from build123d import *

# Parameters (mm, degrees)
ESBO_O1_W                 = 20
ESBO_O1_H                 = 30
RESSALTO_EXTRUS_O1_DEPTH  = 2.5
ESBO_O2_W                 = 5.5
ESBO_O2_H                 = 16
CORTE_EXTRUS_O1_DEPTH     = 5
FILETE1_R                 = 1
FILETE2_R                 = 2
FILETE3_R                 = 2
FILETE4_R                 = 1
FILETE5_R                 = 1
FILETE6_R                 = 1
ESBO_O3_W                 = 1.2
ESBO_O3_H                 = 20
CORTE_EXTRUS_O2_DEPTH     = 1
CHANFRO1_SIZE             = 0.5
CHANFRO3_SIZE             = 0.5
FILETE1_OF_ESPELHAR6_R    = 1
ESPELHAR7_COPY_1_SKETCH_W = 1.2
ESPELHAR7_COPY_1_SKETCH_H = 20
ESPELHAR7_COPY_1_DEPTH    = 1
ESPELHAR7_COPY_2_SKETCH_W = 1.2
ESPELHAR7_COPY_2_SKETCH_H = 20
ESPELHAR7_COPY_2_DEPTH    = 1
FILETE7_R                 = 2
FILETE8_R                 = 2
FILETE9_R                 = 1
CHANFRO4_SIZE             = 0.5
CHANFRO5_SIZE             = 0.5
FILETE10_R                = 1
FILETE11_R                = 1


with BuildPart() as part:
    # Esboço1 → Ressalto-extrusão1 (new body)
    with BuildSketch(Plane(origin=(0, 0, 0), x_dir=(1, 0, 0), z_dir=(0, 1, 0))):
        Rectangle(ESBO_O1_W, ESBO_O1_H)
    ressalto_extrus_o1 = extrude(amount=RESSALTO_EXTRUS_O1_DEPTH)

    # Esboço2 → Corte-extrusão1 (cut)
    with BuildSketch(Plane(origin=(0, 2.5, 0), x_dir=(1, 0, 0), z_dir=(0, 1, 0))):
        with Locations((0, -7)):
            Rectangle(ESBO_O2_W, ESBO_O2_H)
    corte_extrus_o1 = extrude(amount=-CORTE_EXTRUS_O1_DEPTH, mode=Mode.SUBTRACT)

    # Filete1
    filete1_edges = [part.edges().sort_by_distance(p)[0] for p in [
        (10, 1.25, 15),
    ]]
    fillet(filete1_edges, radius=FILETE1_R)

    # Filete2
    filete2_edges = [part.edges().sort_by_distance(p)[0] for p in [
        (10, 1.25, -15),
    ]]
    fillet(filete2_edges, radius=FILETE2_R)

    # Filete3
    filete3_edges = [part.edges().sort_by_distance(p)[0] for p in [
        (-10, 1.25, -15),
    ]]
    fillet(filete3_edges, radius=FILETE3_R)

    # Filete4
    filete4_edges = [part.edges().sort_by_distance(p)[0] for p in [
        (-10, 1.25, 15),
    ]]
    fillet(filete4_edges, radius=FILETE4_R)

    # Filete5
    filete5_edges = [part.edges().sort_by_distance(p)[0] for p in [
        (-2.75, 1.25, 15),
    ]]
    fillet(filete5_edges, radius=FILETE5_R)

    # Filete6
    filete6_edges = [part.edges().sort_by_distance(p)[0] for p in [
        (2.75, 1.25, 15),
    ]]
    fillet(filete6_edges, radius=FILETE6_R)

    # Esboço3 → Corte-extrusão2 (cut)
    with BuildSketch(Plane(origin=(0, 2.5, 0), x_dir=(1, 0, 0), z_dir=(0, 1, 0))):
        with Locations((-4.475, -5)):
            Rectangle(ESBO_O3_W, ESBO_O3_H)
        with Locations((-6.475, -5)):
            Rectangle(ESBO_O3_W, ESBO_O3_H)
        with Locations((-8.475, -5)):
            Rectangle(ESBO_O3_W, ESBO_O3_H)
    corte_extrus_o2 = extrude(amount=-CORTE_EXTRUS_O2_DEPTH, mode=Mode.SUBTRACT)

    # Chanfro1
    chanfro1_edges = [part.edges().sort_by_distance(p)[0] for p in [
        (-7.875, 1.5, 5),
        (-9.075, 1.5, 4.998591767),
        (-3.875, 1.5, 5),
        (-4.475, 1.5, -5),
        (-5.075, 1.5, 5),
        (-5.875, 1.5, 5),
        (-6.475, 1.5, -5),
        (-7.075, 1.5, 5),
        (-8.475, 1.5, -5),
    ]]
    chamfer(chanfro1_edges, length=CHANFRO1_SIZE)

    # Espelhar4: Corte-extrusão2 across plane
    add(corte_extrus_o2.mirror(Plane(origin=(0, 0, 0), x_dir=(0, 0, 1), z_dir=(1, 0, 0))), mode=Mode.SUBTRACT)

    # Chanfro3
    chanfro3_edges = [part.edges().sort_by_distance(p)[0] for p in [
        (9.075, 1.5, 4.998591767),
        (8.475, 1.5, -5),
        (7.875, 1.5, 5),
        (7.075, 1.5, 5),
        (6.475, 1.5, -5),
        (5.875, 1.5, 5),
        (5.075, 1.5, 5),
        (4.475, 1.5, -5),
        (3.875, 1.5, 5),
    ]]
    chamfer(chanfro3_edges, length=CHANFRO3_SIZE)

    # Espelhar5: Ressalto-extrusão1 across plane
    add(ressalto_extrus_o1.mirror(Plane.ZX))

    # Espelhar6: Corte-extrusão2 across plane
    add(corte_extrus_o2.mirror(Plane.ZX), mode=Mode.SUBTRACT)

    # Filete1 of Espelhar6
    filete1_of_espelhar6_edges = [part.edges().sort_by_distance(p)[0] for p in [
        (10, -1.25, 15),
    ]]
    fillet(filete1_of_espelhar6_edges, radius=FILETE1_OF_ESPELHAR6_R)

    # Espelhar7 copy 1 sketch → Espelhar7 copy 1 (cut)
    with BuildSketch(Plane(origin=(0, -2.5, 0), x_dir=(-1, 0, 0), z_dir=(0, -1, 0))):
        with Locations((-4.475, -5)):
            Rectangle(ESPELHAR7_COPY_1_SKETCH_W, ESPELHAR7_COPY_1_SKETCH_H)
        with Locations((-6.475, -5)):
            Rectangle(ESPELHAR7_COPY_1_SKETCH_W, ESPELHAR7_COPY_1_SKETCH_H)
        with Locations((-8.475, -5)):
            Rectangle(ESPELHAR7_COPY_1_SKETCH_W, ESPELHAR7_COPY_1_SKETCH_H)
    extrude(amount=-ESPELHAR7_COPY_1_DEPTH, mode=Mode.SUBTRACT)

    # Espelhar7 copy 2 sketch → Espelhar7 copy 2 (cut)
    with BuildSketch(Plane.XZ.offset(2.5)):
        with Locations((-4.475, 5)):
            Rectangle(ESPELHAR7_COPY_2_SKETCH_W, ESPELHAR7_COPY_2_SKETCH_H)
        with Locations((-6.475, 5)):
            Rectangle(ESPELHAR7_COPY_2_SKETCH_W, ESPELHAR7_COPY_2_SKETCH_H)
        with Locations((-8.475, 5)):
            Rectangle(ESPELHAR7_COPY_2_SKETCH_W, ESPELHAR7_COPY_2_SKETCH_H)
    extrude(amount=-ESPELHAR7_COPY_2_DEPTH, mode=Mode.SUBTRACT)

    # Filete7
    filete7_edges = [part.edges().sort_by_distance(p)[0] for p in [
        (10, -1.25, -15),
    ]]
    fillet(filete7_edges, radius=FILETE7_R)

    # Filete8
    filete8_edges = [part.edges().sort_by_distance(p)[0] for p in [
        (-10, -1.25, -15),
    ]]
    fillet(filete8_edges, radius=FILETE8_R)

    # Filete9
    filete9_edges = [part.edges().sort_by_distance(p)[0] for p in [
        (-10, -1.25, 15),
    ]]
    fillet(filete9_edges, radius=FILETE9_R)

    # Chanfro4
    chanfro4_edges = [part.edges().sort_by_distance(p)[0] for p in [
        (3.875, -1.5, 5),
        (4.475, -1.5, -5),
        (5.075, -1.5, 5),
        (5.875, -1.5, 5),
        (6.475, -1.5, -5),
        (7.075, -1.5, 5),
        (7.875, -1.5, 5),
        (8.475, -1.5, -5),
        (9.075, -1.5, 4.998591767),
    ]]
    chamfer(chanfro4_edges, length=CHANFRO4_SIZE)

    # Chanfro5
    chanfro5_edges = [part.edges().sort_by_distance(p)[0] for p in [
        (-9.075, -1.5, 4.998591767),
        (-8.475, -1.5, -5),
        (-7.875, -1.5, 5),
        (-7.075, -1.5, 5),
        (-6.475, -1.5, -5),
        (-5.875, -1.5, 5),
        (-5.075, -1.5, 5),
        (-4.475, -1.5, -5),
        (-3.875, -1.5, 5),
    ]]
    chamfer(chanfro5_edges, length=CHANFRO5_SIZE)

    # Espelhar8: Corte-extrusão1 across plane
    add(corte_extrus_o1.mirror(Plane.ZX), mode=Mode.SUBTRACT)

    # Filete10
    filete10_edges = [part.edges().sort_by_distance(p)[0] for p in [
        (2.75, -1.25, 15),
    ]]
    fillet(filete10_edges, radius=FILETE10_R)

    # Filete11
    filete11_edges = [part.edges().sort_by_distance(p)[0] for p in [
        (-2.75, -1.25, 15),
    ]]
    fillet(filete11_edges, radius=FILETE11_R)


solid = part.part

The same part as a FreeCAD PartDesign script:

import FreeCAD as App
import Part
import Sketcher


def edges_at(feature, points):
    """Names of the edges that pass closest to the given points."""
    edges = feature.Shape.Edges
    near = lambda p: min(range(len(edges)), key=lambda i: edges[i].distToShape(Part.Vertex(*p))[0])
    return sorted({f"Edge{near(p) + 1}" for p in points})


def add_polygon(sketch, points):
    """Adds a closed chain of lines whose ends are joined by coincident constraints."""
    first, n = sketch.GeometryCount, len(points)
    for a, b in zip(points, points[1:] + points[:1]):
        sketch.addGeometry(Part.LineSegment(App.Vector(*a, 0), App.Vector(*b, 0)), False)
    for i in range(n):
        sketch.addConstraint(Sketcher.Constraint("Coincident", first + i, 2, first + (i + 1) % n, 1))

doc = App.newDocument("Part")
body = doc.addObject("PartDesign::Body", "Body")

sketch1 = doc.addObject("Sketcher::SketchObject", "Sketch")
body.addObject(sketch1)
sketch1.AttachmentSupport = (doc.XZ_Plane, [""])
sketch1.MapMode = "FlatFace"
add_polygon(sketch1, [(-10, -15), (-10, 15), (10, 15), (10, -15)])
sketch1.addConstraint([
    Sketcher.Constraint("Vertical", 0),
    Sketcher.Constraint("Horizontal", 1),
    Sketcher.Constraint("Vertical", 2),
    Sketcher.Constraint("Horizontal", 3),
    Sketcher.Constraint("Symmetric", 0, 2, 2, 2, -1, 1),
    Sketcher.Constraint("DistanceX", 1, 1, 1, 2, 20.0),
    Sketcher.Constraint("DistanceY", 0, 1, 0, 2, 30.0),
])
pad1 = doc.addObject("PartDesign::Pad", "Pad")
body.addObject(pad1)
pad1.Profile = sketch1
pad1.Length = 2.5
pad1.Reversed = True

sketch2 = doc.addObject("Sketcher::SketchObject", "Sketch001")
body.addObject(sketch2)
sketch2.AttachmentSupport = (doc.XZ_Plane, [""])
sketch2.MapMode = "FlatFace"
sketch2.AttachmentOffset = App.Placement(App.Vector(0, 0, -2.5), App.Rotation())
add_polygon(sketch2, [(-3, -1), (-3, 15), (3, 15), (3, -1)])
sketch2.addConstraint([
    Sketcher.Constraint("Vertical", 0),
    Sketcher.Constraint("Horizontal", 1),
    Sketcher.Constraint("Vertical", 2),
    Sketcher.Constraint("Horizontal", 3),
    Sketcher.Constraint("DistanceY", 0, 1, 0, 2, 16.0),
    Sketcher.Constraint("DistanceX", 1, 1, 1, 2, 5.5),
    Sketcher.Constraint("DistanceY", -1, 1, 0, 2, 15.0),
    Sketcher.Constraint("DistanceX", 0, 2, -1, 1, 2.75),
])
pocket1 = doc.addObject("PartDesign::Pocket", "Pocket")
body.addObject(pocket1)
pocket1.Profile = sketch2
pocket1.Length = 5
pocket1.Reversed = True
doc.recompute()

fillet = doc.addObject("PartDesign::Fillet", "Fillet")
body.addObject(fillet)
fillet.Base = (pocket1, edges_at(pocket1, [(10, 1.25, 15)]))
fillet.Radius = 1
doc.recompute()

fillet2 = doc.addObject("PartDesign::Fillet", "Fillet001")
body.addObject(fillet2)
fillet2.Base = (fillet, edges_at(fillet, [(10, 1.25, -15)]))
fillet2.Radius = 2
doc.recompute()

fillet3 = doc.addObject("PartDesign::Fillet", "Fillet002")
body.addObject(fillet3)
fillet3.Base = (fillet2, edges_at(fillet2, [(-10, 1.25, -15)]))
fillet3.Radius = 2
doc.recompute()

fillet4 = doc.addObject("PartDesign::Fillet", "Fillet003")
body.addObject(fillet4)
fillet4.Base = (fillet3, edges_at(fillet3, [(-10, 1.25, 15)]))
fillet4.Radius = 1
doc.recompute()

fillet5 = doc.addObject("PartDesign::Fillet", "Fillet004")
body.addObject(fillet5)
fillet5.Base = (fillet4, edges_at(fillet4, [(-2.75, 1.25, 15)]))
fillet5.Radius = 1
doc.recompute()

fillet6 = doc.addObject("PartDesign::Fillet", "Fillet005")
body.addObject(fillet6)
fillet6.Base = (fillet5, edges_at(fillet5, [(2.75, 1.25, 15)]))
fillet6.Radius = 1

sketch3 = doc.addObject("Sketcher::SketchObject", "Sketch002")
body.addObject(sketch3)
sketch3.AttachmentSupport = (doc.XZ_Plane, [""])
sketch3.MapMode = "FlatFace"
sketch3.AttachmentOffset = App.Placement(App.Vector(0, 0, -2.5), App.Rotation())
add_polygon(sketch3, [(-5.1, -5), (-5.1, 15), (-3.9, 15), (-3.9, -5)])
add_polygon(sketch3, [(-7.1, -5), (-7.1, 15), (-5.9, 15), (-5.9, -5)])
add_polygon(sketch3, [(-9.1, -5), (-9.1, 15), (-7.9, 15), (-7.9, -5)])
sketch3.addConstraint([
    Sketcher.Constraint("Vertical", 0),
    Sketcher.Constraint("Horizontal", 1),
    Sketcher.Constraint("Vertical", 2),
    Sketcher.Constraint("Horizontal", 3),
    Sketcher.Constraint("Vertical", 4),
    Sketcher.Constraint("Horizontal", 5),
    Sketcher.Constraint("Vertical", 6),
    Sketcher.Constraint("Horizontal", 7),
    Sketcher.Constraint("Vertical", 8),
    Sketcher.Constraint("Horizontal", 9),
    Sketcher.Constraint("Vertical", 10),
    Sketcher.Constraint("Horizontal", 11),
    Sketcher.Constraint("Horizontal", 1, 2, 4, 2),
    Sketcher.Constraint("Horizontal", 3, 2, 6, 2),
    Sketcher.Constraint("Horizontal", 5, 2, 8, 2),
    Sketcher.Constraint("Horizontal", 7, 2, 10, 2),
    Sketcher.Constraint("Equal", 3, 5),
    Sketcher.Constraint("Equal", 7, 9),
    Sketcher.Constraint("DistanceY", 0, 1, 0, 2, 20.0),
    Sketcher.Constraint("DistanceX", 1, 1, 1, 2, 1.2),
    Sketcher.Constraint("DistanceY", -1, 1, 0, 2, 15.0),
    Sketcher.Constraint("DistanceX", 4, 2, 0, 2, 2.0),
    Sketcher.Constraint("DistanceX", 8, 2, 4, 2, 2.0),
    Sketcher.Constraint("DistanceX", 0, 2, -1, 1, 5.075),
])
pocket2 = doc.addObject("PartDesign::Pocket", "Pocket001")
body.addObject(pocket2)
pocket2.Profile = sketch3
pocket2.Length = 1
pocket2.Reversed = True
doc.recompute()

chamfer = doc.addObject("PartDesign::Chamfer", "Chamfer")
body.addObject(chamfer)
chamfer.Base = (pocket2, edges_at(pocket2, [
    (-7.875, 1.5, 5),
    (-9.075, 1.5, 4.999),
    (-3.875, 1.5, 5),
    (-4.475, 1.5, -5),
    (-5.075, 1.5, 5),
    (-5.875, 1.5, 5),
    (-6.475, 1.5, -5),
    (-7.075, 1.5, 5),
    (-8.475, 1.5, -5),
]))
chamfer.Size = 0.5
doc.recompute()

mirrored = doc.addObject("PartDesign::Mirrored", "Mirrored")
body.addObject(mirrored)
mirrored.Originals = [pocket2]
mirrored.MirrorPlane = (doc.YZ_Plane, [""])
body.Tip = mirrored
doc.recompute()

chamfer2 = doc.addObject("PartDesign::Chamfer", "Chamfer001")
body.addObject(chamfer2)
chamfer2.Base = (mirrored, edges_at(mirrored, [
    (9.075, 1.5, 4.999),
    (8.475, 1.5, -5),
    (7.875, 1.5, 5),
    (7.075, 1.5, 5),
    (6.475, 1.5, -5),
    (5.875, 1.5, 5),
    (5.075, 1.5, 5),
    (4.475, 1.5, -5),
    (3.875, 1.5, 5),
]))
chamfer2.Size = 0.5
doc.recompute()

mirrored2 = doc.addObject("PartDesign::Mirrored", "Mirrored001")
body.addObject(mirrored2)
mirrored2.Originals = [pad1]
mirrored2.MirrorPlane = (doc.XZ_Plane, [""])
body.Tip = mirrored2
doc.recompute()

mirrored3 = doc.addObject("PartDesign::Mirrored", "Mirrored002")
body.addObject(mirrored3)
mirrored3.Originals = [pocket2]
mirrored3.MirrorPlane = (doc.XZ_Plane, [""])
body.Tip = mirrored3
doc.recompute()

fillet7 = doc.addObject("PartDesign::Fillet", "Fillet006")
body.addObject(fillet7)
fillet7.Base = (mirrored3, edges_at(mirrored3, [(10, -1.25, 15)]))
fillet7.Radius = 1

sketch4 = doc.addObject("Sketcher::SketchObject", "Sketch003")
body.addObject(sketch4)
sketch4.AttachmentSupport = (doc.XZ_Plane, [""])
sketch4.MapMode = "FlatFace"
sketch4.AttachmentOffset = App.Placement(App.Vector(0, 0, 2.5), App.Rotation())
add_polygon(sketch4, [(5.1, -5), (5.1, 15), (3.9, 15), (3.9, -5)])
add_polygon(sketch4, [(7.1, -5), (7.1, 15), (5.9, 15), (5.9, -5)])
add_polygon(sketch4, [(9.1, -5), (9.1, 15), (7.9, 15), (7.9, -5)])
sketch4.addConstraint([
    Sketcher.Constraint("Vertical", 0),
    Sketcher.Constraint("Horizontal", 1),
    Sketcher.Constraint("Vertical", 2),
    Sketcher.Constraint("Horizontal", 3),
    Sketcher.Constraint("Vertical", 4),
    Sketcher.Constraint("Horizontal", 5),
    Sketcher.Constraint("Vertical", 6),
    Sketcher.Constraint("Horizontal", 7),
    Sketcher.Constraint("Vertical", 8),
    Sketcher.Constraint("Horizontal", 9),
    Sketcher.Constraint("Vertical", 10),
    Sketcher.Constraint("Horizontal", 11),
    Sketcher.Constraint("Horizontal", 1, 2, 4, 2),
    Sketcher.Constraint("Horizontal", 3, 2, 6, 2),
    Sketcher.Constraint("Horizontal", 5, 2, 8, 2),
    Sketcher.Constraint("Horizontal", 7, 2, 10, 2),
    Sketcher.Constraint("Equal", 3, 5),
    Sketcher.Constraint("Equal", 7, 9),
    Sketcher.Constraint("DistanceY", 0, 1, 0, 2, 20.0),
    Sketcher.Constraint("DistanceX", 1, 2, 1, 1, 1.2),
    Sketcher.Constraint("DistanceY", -1, 1, 0, 2, 15.0),
    Sketcher.Constraint("DistanceX", 0, 2, 4, 2, 2.0),
    Sketcher.Constraint("DistanceX", 4, 2, 8, 2, 2.0),
    Sketcher.Constraint("DistanceX", -1, 1, 0, 2, 5.075),
])
pocket3 = doc.addObject("PartDesign::Pocket", "Pocket002")
body.addObject(pocket3)
pocket3.Profile = sketch4
pocket3.Length = 1

sketch5 = doc.addObject("Sketcher::SketchObject", "Sketch004")
body.addObject(sketch5)
sketch5.AttachmentSupport = (doc.XZ_Plane, [""])
sketch5.MapMode = "FlatFace"
sketch5.AttachmentOffset = App.Placement(App.Vector(0, 0, 2.5), App.Rotation())
add_polygon(sketch5, [(-5.1, 15), (-5.1, -5), (-3.9, -5), (-3.9, 15)])
add_polygon(sketch5, [(-7.1, 15), (-7.1, -5), (-5.9, -5), (-5.9, 15)])
add_polygon(sketch5, [(-9.1, 15), (-9.1, -5), (-7.9, -5), (-7.9, 15)])
sketch5.addConstraint([
    Sketcher.Constraint("Vertical", 0),
    Sketcher.Constraint("Horizontal", 1),
    Sketcher.Constraint("Vertical", 2),
    Sketcher.Constraint("Horizontal", 3),
    Sketcher.Constraint("Vertical", 4),
    Sketcher.Constraint("Horizontal", 5),
    Sketcher.Constraint("Vertical", 6),
    Sketcher.Constraint("Horizontal", 7),
    Sketcher.Constraint("Vertical", 8),
    Sketcher.Constraint("Horizontal", 9),
    Sketcher.Constraint("Vertical", 10),
    Sketcher.Constraint("Horizontal", 11),
    Sketcher.Constraint("Horizontal", 1, 2, 4, 2),
    Sketcher.Constraint("Horizontal", 3, 2, 6, 2),
    Sketcher.Constraint("Horizontal", 5, 2, 8, 2),
    Sketcher.Constraint("Horizontal", 7, 2, 10, 2),
    Sketcher.Constraint("Equal", 3, 5),
    Sketcher.Constraint("Equal", 7, 9),
    Sketcher.Constraint("DistanceY", 0, 2, 0, 1, 20.0),
    Sketcher.Constraint("DistanceX", 1, 1, 1, 2, 1.2),
    Sketcher.Constraint("DistanceY", 0, 2, -1, 1, 5.0),
    Sketcher.Constraint("DistanceX", 4, 2, 0, 2, 2.0),
    Sketcher.Constraint("DistanceX", 8, 2, 4, 2, 2.0),
    Sketcher.Constraint("DistanceX", 0, 2, -1, 1, 5.075),
])
pocket4 = doc.addObject("PartDesign::Pocket", "Pocket003")
body.addObject(pocket4)
pocket4.Profile = sketch5
pocket4.Length = 1
doc.recompute()

fillet8 = doc.addObject("PartDesign::Fillet", "Fillet007")
body.addObject(fillet8)
fillet8.Base = (pocket4, edges_at(pocket4, [(10, -1.25, -15)]))
fillet8.Radius = 2
doc.recompute()

fillet9 = doc.addObject("PartDesign::Fillet", "Fillet008")
body.addObject(fillet9)
fillet9.Base = (fillet8, edges_at(fillet8, [(-10, -1.25, -15)]))
fillet9.Radius = 2
doc.recompute()

fillet10 = doc.addObject("PartDesign::Fillet", "Fillet009")
body.addObject(fillet10)
fillet10.Base = (fillet9, edges_at(fillet9, [(-10, -1.25, 15)]))
fillet10.Radius = 1
doc.recompute()

chamfer3 = doc.addObject("PartDesign::Chamfer", "Chamfer002")
body.addObject(chamfer3)
chamfer3.Base = (fillet10, edges_at(fillet10, [
    (3.875, -1.5, 5),
    (4.475, -1.5, -5),
    (5.075, -1.5, 5),
    (5.875, -1.5, 5),
    (6.475, -1.5, -5),
    (7.075, -1.5, 5),
    (7.875, -1.5, 5),
    (8.475, -1.5, -5),
    (9.075, -1.5, 4.999),
]))
chamfer3.Size = 0.5
doc.recompute()

chamfer4 = doc.addObject("PartDesign::Chamfer", "Chamfer003")
body.addObject(chamfer4)
chamfer4.Base = (chamfer3, edges_at(chamfer3, [
    (-9.075, -1.5, 4.999),
    (-8.475, -1.5, -5),
    (-7.875, -1.5, 5),
    (-7.075, -1.5, 5),
    (-6.475, -1.5, -5),
    (-5.875, -1.5, 5),
    (-5.075, -1.5, 5),
    (-4.475, -1.5, -5),
    (-3.875, -1.5, 5),
]))
chamfer4.Size = 0.5
doc.recompute()

mirrored4 = doc.addObject("PartDesign::Mirrored", "Mirrored003")
body.addObject(mirrored4)
mirrored4.Originals = [pocket1]
mirrored4.MirrorPlane = (doc.XZ_Plane, [""])
body.Tip = mirrored4
doc.recompute()

fillet11 = doc.addObject("PartDesign::Fillet", "Fillet010")
body.addObject(fillet11)
fillet11.Base = (mirrored4, edges_at(mirrored4, [(2.75, -1.25, 15)]))
fillet11.Radius = 1
doc.recompute()

fillet12 = doc.addObject("PartDesign::Fillet", "Fillet011")
body.addObject(fillet12)
fillet12.Base = (fillet11, edges_at(fillet11, [(-2.75, -1.25, 15)]))
fillet12.Radius = 1

doc.recompute()
